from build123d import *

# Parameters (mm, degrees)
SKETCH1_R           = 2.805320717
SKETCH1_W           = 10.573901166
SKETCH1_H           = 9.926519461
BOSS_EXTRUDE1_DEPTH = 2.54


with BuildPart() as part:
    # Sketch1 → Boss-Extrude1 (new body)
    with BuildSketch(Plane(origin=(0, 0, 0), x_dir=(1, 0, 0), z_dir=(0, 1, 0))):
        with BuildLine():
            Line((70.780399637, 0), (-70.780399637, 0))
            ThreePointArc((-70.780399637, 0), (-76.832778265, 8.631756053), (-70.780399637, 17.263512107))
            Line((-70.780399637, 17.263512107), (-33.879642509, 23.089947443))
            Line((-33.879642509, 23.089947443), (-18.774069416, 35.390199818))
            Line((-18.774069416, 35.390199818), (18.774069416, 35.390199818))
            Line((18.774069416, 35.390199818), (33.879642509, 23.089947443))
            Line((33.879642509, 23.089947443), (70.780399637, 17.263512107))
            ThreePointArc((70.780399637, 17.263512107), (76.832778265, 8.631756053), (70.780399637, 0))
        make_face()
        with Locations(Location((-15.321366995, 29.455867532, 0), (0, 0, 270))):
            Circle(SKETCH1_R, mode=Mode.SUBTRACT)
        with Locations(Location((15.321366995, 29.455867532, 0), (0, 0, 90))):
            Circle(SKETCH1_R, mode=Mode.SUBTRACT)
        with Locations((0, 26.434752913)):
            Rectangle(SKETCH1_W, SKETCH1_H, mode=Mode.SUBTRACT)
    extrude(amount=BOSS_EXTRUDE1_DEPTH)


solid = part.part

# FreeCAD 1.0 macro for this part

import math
import FreeCAD as App
import Part
import Sketcher
Q = App.Units.Quantity

doc = App.newDocument("Part")
body = doc.addObject("PartDesign::Body", "Body")

# Sketch on XZ plane
sketch1 = body.newObject("Sketcher::SketchObject", "Sketch")
sketch1.AttachmentSupport = (doc.getObject("XZ_Plane"), [""])
sketch1.MapMode = "FlatFace"
sketch1.addGeometry([
    Part.LineSegment(App.Vector(-70.8, 0, 0), App.Vector(70.8, 0, 0)),  # 0
    Part.ArcOfCircle(Part.Circle(App.Vector(67.7, -8.6, 0), App.Vector(0, 0, 1), 9.2), math.radians(-70), math.radians(70)),  # 1
    Part.LineSegment(App.Vector(70.8, -17.3, 0), App.Vector(33.9, -23.1, 0)),  # 2
    Part.LineSegment(App.Vector(33.9, -23.1, 0), App.Vector(18.8, -35.4, 0)),  # 3
    Part.LineSegment(App.Vector(18.8, -35.4, 0), App.Vector(-18.8, -35.4, 0)),  # 4
    Part.LineSegment(App.Vector(-18.8, -35.4, 0), App.Vector(-33.9, -23.1, 0)),  # 5
    Part.LineSegment(App.Vector(-33.9, -23.1, 0), App.Vector(-70.8, -17.3, 0)),  # 6
    Part.ArcOfCircle(Part.Circle(App.Vector(-67.7, -8.6, 0), App.Vector(0, 0, 1), 9.2), math.radians(110), math.radians(250)),  # 7
    Part.LineSegment(App.Vector(-5.3, -21.5, 0), App.Vector(-5.3, -31.4, 0)),  # 8
    Part.LineSegment(App.Vector(-5.3, -31.4, 0), App.Vector(5.3, -31.4, 0)),  # 9
    Part.LineSegment(App.Vector(5.3, -31.4, 0), App.Vector(5.3, -21.5, 0)),  # 10
    Part.LineSegment(App.Vector(5.3, -21.5, 0), App.Vector(-5.3, -21.5, 0)),  # 11
    Part.Circle(App.Vector(15.3, -29.5, 0), App.Vector(0, 0, 1), 2.8),  # 12
    Part.Circle(App.Vector(-15.3, -29.5, 0), App.Vector(0, 0, 1), 2.8),  # 13
], False)
sketch1.addConstraint([
    Sketcher.Constraint("Coincident", 0, 2, 1, 2),
    Sketcher.Constraint("Coincident", 1, 1, 2, 1),
    Sketcher.Constraint("Coincident", 2, 2, 3, 1),
    Sketcher.Constraint("Coincident", 3, 2, 4, 1),
    Sketcher.Constraint("Coincident", 4, 2, 5, 1),
    Sketcher.Constraint("Coincident", 5, 2, 6, 1),
    Sketcher.Constraint("Coincident", 6, 2, 7, 2),
    Sketcher.Constraint("Coincident", 7, 1, 0, 1),
    Sketcher.Constraint("Coincident", 8, 2, 9, 1),
    Sketcher.Constraint("Coincident", 9, 2, 10, 1),
    Sketcher.Constraint("Coincident", 10, 2, 11, 1),
    Sketcher.Constraint("Coincident", 11, 2, 8, 1),
    Sketcher.Constraint("Horizontal", 0),
    Sketcher.Constraint("Horizontal", 4),
    Sketcher.Constraint("Vertical", 8),
    Sketcher.Constraint("Horizontal", 9),
    Sketcher.Constraint("Vertical", 10),
    Sketcher.Constraint("Horizontal", 11),
    Sketcher.Constraint("Equal", 1, 7),
    Sketcher.Constraint("Equal", 12, 13),
    Sketcher.Constraint("Symmetric", 0, 2, 7, 1, -1, 1),
    Sketcher.Constraint("Symmetric", 12, 3, 13, 3, -2),
    Sketcher.Constraint("Symmetric", 2, 2, 5, 2, -2),
    Sketcher.Constraint("Symmetric", 1, 1, 6, 2, -2),
    Sketcher.Constraint("Vertical", 0, 2, 1, 1),
    Sketcher.Constraint("Equal", 3, 5),
    Sketcher.Constraint("Diameter", 12, 5.610641),
    Sketcher.Constraint("Radius", 1, 9.18139),
    Sketcher.Constraint("DistanceX", 0, 1, 0, 2, 141.560799),
    Sketcher.Constraint("DistanceX", 9, 1, 9, 2, 10.573901),
    Sketcher.Constraint("DistanceX", 4, 2, 4, 1, 37.548139),
    Sketcher.Constraint("DistanceY", 8, 2, 8, 1, 9.926519),
    Sketcher.Constraint("DistanceY", 3, 2, -1, 1, 35.3902),
    Sketcher.Constraint("DistanceX", -1, 1, 1, 3, 67.651388),
    Sketcher.Constraint("DistanceX", 8, 2, -1, 1, 5.286951),
    Sketcher.Constraint("DistanceX", 12, 3, 1, 3, 52.330021),
    Sketcher.Constraint("DistanceY", 12, 3, 1, 3, 20.824111),
    Sketcher.Constraint("DistanceY", 12, 3, 2, 2, 6.36592),
    Sketcher.Constraint("DistanceX", 13, 3, 2, 2, 49.20101),
    Sketcher.Constraint("DistanceY", 8, 2, -1, 1, 31.398013),
])
pad1 = body.newObject("PartDesign::Pad", "Pad")
pad1.Profile = sketch1
pad1.Length = Q("0.1 in")
pad1.Reversed = True

doc.recompute()
